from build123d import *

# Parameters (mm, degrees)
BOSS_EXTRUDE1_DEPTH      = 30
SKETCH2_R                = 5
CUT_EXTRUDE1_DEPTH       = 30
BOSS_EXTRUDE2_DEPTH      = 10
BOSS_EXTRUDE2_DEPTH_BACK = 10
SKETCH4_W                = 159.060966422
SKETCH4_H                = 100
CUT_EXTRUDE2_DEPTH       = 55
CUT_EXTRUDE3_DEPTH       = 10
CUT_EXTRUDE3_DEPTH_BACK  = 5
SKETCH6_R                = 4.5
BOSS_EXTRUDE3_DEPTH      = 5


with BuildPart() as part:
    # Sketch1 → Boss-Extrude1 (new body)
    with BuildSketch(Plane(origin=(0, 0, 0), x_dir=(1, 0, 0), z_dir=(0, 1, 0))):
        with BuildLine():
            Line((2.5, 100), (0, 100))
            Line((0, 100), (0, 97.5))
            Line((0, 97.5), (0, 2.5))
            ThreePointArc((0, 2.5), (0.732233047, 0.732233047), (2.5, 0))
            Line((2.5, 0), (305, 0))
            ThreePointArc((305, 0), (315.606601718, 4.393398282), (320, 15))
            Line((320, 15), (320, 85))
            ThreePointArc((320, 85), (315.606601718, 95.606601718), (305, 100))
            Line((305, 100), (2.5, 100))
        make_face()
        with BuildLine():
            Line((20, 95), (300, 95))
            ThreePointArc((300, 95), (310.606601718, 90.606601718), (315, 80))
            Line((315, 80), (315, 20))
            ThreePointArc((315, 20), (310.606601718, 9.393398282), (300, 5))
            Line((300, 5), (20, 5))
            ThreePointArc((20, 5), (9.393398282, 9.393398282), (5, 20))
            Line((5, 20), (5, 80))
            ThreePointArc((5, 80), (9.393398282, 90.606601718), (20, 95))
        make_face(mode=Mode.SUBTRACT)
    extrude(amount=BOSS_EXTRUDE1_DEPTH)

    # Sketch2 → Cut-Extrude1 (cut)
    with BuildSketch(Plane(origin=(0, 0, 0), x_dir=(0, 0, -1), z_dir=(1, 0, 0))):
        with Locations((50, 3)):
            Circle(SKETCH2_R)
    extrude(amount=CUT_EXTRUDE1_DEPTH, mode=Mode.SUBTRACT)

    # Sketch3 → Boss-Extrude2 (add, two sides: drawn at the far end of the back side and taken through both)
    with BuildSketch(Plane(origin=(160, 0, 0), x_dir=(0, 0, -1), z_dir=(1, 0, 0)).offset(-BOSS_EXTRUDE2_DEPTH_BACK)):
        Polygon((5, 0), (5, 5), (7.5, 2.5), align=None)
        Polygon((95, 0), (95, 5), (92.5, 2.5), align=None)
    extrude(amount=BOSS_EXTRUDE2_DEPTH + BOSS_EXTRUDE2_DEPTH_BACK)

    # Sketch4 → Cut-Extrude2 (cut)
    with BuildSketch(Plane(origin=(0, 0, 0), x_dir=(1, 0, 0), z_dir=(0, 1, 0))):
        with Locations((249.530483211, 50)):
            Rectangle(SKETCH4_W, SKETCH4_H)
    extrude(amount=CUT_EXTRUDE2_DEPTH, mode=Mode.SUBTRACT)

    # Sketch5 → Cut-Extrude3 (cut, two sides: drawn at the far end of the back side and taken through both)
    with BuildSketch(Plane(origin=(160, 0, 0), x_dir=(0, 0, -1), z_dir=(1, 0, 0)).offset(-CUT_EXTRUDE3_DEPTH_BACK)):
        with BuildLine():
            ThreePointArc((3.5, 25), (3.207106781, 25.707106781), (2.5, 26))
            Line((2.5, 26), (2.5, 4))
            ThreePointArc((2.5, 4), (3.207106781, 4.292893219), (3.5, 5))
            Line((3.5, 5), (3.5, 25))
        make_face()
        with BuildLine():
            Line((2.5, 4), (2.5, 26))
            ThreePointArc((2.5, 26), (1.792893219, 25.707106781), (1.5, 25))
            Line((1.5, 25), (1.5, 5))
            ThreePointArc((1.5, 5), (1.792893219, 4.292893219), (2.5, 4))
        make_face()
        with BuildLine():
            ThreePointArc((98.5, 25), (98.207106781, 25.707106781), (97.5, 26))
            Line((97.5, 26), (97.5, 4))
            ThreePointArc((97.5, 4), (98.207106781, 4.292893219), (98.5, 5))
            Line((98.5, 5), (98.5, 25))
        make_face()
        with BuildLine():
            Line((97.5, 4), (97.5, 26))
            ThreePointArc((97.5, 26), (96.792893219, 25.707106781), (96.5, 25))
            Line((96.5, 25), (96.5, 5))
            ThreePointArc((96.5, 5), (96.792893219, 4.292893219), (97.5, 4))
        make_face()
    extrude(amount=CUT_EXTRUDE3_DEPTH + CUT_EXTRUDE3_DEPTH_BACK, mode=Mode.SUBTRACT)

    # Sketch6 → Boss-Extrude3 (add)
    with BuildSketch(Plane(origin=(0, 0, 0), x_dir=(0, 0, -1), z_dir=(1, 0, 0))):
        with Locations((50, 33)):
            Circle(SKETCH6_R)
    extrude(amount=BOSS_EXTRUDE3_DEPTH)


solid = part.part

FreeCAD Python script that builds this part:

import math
import FreeCAD as App
import Part
import Sketcher

V = App.Vector
Q = App.Units.Quantity


def add_polygon(sketch, points):
    """Adds a closed chain of lines whose ends are joined by coincident constraints."""
    first, n = sketch.GeometryCount, len(points)
    for a, b in zip(points, points[1:] + points[:1]):
        sketch.addGeometry(Part.LineSegment(App.Vector(*a, 0), App.Vector(*b, 0)), False)
    for i in range(n):
        sketch.addConstraint(Sketcher.Constraint("Coincident", first + i, 2, first + (i + 1) % n, 1))

doc = App.newDocument("Part")
params = doc.addObject("Spreadsheet::Sheet", "Params")
for row, (alias, value) in enumerate([
    ("sketch1_radius", "15 mm"),
    ("sketch1_radius2", "2.5 mm"),
    ("sketch1_width", "305 mm"),
    ("sketch1_width2", "280 mm"),
    ("sketch1_height", "70 mm"),
    ("pad1_length", "30 mm"),
    ("sketch2_diameter", "10 mm"),
    ("pocket1_length", "30 mm"),
    ("sketch3_width", "5 mm"),
    ("pad2_length", "10 mm"),
    ("pad2_length2", "10 mm"),
    ("sketch4_height", "100 mm"),
    ("pocket2_length", "55 mm"),
    ("sketch5_radius", "1 mm"),
    ("sketch5_width", "20 mm"),
    ("pocket3_length", "10 mm"),
    ("pocket3_length2", "5 mm"),
    ("sketch6_diameter", "9 mm"),
    ("pad3_length", "5 mm"),
], start=1):
    params.set(f"A{row}", alias)
    params.set(f"B{row}", "=" + value)
    params.setAlias(f"B{row}", alias)

body = doc.addObject("PartDesign::Body", "Body")

# Sketch on XZ plane
sketch1 = doc.addObject("Sketcher::SketchObject", "Sketch")
body.addObject(sketch1)
sketch1.AttachmentSupport = (doc.XZ_Plane, [""])
sketch1.MapMode = "FlatFace"
sketch1.addGeometry([
    Part.LineSegment(V(0, -100, 0), V(0, -2.5, 0)),  # 0
    Part.ArcOfCircle(Part.Circle(V(2.5, -2.5, 0), V(0, 0, 1), 2.5), math.radians(90), math.radians(180)),  # 1
    Part.LineSegment(V(2.5, 0, 0), V(305, 0, 0)),  # 2
    Part.ArcOfCircle(Part.Circle(V(305, -15, 0), V(0, 0, 1), 15), math.radians(0), math.radians(90)),  # 3
    Part.LineSegment(V(320, -15, 0), V(320, -85, 0)),  # 4
    Part.ArcOfCircle(Part.Circle(V(305, -85, 0), V(0, 0, 1), 15), math.radians(-90), math.radians(0)),  # 5
    Part.LineSegment(V(305, -100, 0), V(0, -100, 0)),  # 6
    Part.ArcOfCircle(Part.Circle(V(20, -80, 0), V(0, 0, 1), 15), math.radians(180), math.radians(270)),  # 7
    Part.LineSegment(V(20, -95, 0), V(300, -95, 0)),  # 8
    Part.ArcOfCircle(Part.Circle(V(300, -80, 0), V(0, 0, 1), 15), math.radians(-90), math.radians(0)),  # 9
    Part.LineSegment(V(315, -80, 0), V(315, -20, 0)),  # 10
    Part.ArcOfCircle(Part.Circle(V(300, -20, 0), V(0, 0, 1), 15), math.radians(0), math.radians(90)),  # 11
    Part.LineSegment(V(300, -5, 0), V(20, -5, 0)),  # 12
    Part.ArcOfCircle(Part.Circle(V(20, -20, 0), V(0, 0, 1), 15), math.radians(90), math.radians(180)),  # 13
    Part.LineSegment(V(5, -20, 0), V(5, -80, 0)),  # 14
], False)
sketch1.addConstraint([
    Sketcher.Constraint("Tangent", 0, 2, 1, 2),
    Sketcher.Constraint("Tangent", 1, 1, 2, 1),
    Sketcher.Constraint("Tangent", 2, 2, 3, 2),
    Sketcher.Constraint("Tangent", 3, 1, 4, 1),
    Sketcher.Constraint("Tangent", 4, 2, 5, 2),
    Sketcher.Constraint("Tangent", 5, 1, 6, 1),
    Sketcher.Constraint("Coincident", 6, 2, 0, 1),
    Sketcher.Constraint("Tangent", 7, 2, 8, 1),
    Sketcher.Constraint("Tangent", 8, 2, 9, 1),
    Sketcher.Constraint("Tangent", 9, 2, 10, 1),
    Sketcher.Constraint("Tangent", 10, 2, 11, 1),
    Sketcher.Constraint("Tangent", 11, 2, 12, 1),
    Sketcher.Constraint("Tangent", 12, 2, 13, 1),
    Sketcher.Constraint("Tangent", 13, 2, 14, 1),
    Sketcher.Constraint("Tangent", 14, 2, 7, 1),
    Sketcher.Constraint("Vertical", 0),
    Sketcher.Constraint("Horizontal", 2),
    Sketcher.Constraint("Vertical", 4),
    Sketcher.Constraint("Horizontal", 6),
    Sketcher.Constraint("Horizontal", 8),
    Sketcher.Constraint("Vertical", 10),
    Sketcher.Constraint("Horizontal", 12),
    Sketcher.Constraint("Vertical", 14),
    Sketcher.Constraint("Equal", 3, 5),
    Sketcher.Constraint("Equal", 5, 7),
    Sketcher.Constraint("Equal", 7, 9),
    Sketcher.Constraint("Equal", 9, 11),
    Sketcher.Constraint("Equal", 11, 13),
    Sketcher.Constraint("PointOnObject", 0, 2, -2),
    Sketcher.Constraint("PointOnObject", 1, 1, -1),
    Sketcher.Constraint("Radius", 3, Q("15 mm")),
    Sketcher.Constraint("Radius", 1, Q("2.5 mm")),
    Sketcher.Constraint("DistanceX", 6, 2, 6, 1, Q("305 mm")),
    Sketcher.Constraint("DistanceX", 8, 1, 8, 2, Q("280 mm")),
    Sketcher.Constraint("DistanceY", 4, 2, 4, 1, Q("70 mm")),
    Sketcher.Constraint("DistanceY", 10, 1, 10, 2, Q("60 mm")),
    Sketcher.Constraint("DistanceX", -1, 1, 7, 3, Q("20 mm")),
    Sketcher.Constraint("DistanceY", 7, 3, -1, 1, Q("80 mm")),
])
sketch1.setExpression("Constraints[30]", "Params.sketch1_radius")
sketch1.setExpression("Constraints[31]", "Params.sketch1_radius2")
sketch1.setExpression("Constraints[32]", "Params.sketch1_width")
sketch1.setExpression("Constraints[33]", "Params.sketch1_width2")
sketch1.setExpression("Constraints[34]", "Params.sketch1_height")
pad1 = doc.addObject("PartDesign::Pad", "Pad")
body.addObject(pad1)
pad1.Profile = sketch1
pad1.setExpression("Length", "Params.pad1_length")
pad1.Reversed = True

# Sketch on YZ plane
sketch2 = doc.addObject("Sketcher::SketchObject", "Sketch001")
body.addObject(sketch2)
sketch2.AttachmentSupport = (doc.YZ_Plane, [""])
sketch2.MapMode = "FlatFace"
sketch2.addGeometry(Part.Circle(V(3, -50, 0), V(0, 0, 1), 5), False)
sketch2.addConstraint([
    Sketcher.Constraint("Diameter", 0, Q("10 mm")),
    Sketcher.Constraint("DistanceX", -1, 1, 0, 3, Q("3 mm")),
    Sketcher.Constraint("DistanceY", 0, 3, -1, 1, Q("50 mm")),
])
sketch2.setExpression("Constraints[0]", "Params.sketch2_diameter")
pocket1 = doc.addObject("PartDesign::Pocket", "Pocket")
body.addObject(pocket1)
pocket1.Profile = sketch2
pocket1.setExpression("Length", "Params.pocket1_length")
pocket1.Reversed = True

# Sketch on YZ plane
sketch3 = doc.addObject("Sketcher::SketchObject", "Sketch002")
body.addObject(sketch3)
sketch3.AttachmentSupport = (doc.YZ_Plane, [""])
sketch3.MapMode = "FlatFace"
sketch3.AttachmentOffset = App.Placement(V(0, 0, 160), App.Rotation())
add_polygon(sketch3, [(5, -5), (0, -5), (2.5, -7.5)])  # lines 0-2
add_polygon(sketch3, [(0, -95), (5, -95), (2.5, -92.5)])  # lines 3-5
sketch3.addConstraint([
    Sketcher.Constraint("Horizontal", 0),
    Sketcher.Constraint("Horizontal", 3),
    Sketcher.Constraint("PointOnObject", 0, 2, -2),
    Sketcher.Constraint("PointOnObject", 5, 2, -2),
    Sketcher.Constraint("Perpendicular", 1, 2),
    Sketcher.Constraint("Perpendicular", 2, 4),
    Sketcher.Constraint("Perpendicular", 4, 5),
    Sketcher.Constraint("Vertical", 2, 2, 3, 2),
    Sketcher.Constraint("Vertical", 1, 2, 4, 2),
    Sketcher.Constraint("DistanceX", 0, 2, 0, 1, Q("5 mm")),
    Sketcher.Constraint("DistanceY", 0, 2, -1, 1, Q("5 mm")),
    Sketcher.Constraint("DistanceY", 3, 2, -1, 1, Q("95 mm")),
])
sketch3.setExpression("Constraints[15]", "Params.sketch3_width")
pad2 = doc.addObject("PartDesign::Pad", "Pad001")
body.addObject(pad2)
pad2.Profile = sketch3
pad2.Type = "TwoLengths"
pad2.setExpression("Length", "Params.pad2_length")
pad2.setExpression("Length2", "Params.pad2_length2")

# Sketch on XZ plane
sketch4 = doc.addObject("Sketcher::SketchObject", "Sketch003")
body.addObject(sketch4)
sketch4.AttachmentSupport = (doc.XZ_Plane, [""])
sketch4.MapMode = "FlatFace"
add_polygon(sketch4, [(170, -100), (170, 0), (329.060966, 0), (329.060966, -100)])  # lines 0-3
sketch4.addConstraint([
    Sketcher.Constraint("Vertical", 0),
    Sketcher.Constraint("Horizontal", 1),
    Sketcher.Constraint("Vertical", 2),
    Sketcher.Constraint("Horizontal", 3),
    Sketcher.Constraint("PointOnObject", 0, 2, -1),
    Sketcher.Constraint("DistanceY", 0, 1, 0, 2, Q("100 mm")),
    Sketcher.Constraint("DistanceX", -1, 1, 0, 2, Q("170 mm")),
    Sketcher.Constraint("DistanceX", 1, 1, 1, 2, Q("159.060966 mm")),
])
sketch4.setExpression("Constraints[9]", "Params.sketch4_height")
pocket2 = doc.addObject("PartDesign::Pocket", "Pocket001")
body.addObject(pocket2)
pocket2.Profile = sketch4
pocket2.setExpression("Length", "Params.pocket2_length")

# Sketch on YZ plane
sketch5 = doc.addObject("Sketcher::SketchObject", "Sketch004")
body.addObject(sketch5)
sketch5.AttachmentSupport = (doc.YZ_Plane, [""])
sketch5.MapMode = "FlatFace"
sketch5.AttachmentOffset = App.Placement(V(0, 0, 160), App.Rotation())
sketch5.addGeometry([
    Part.ArcOfCircle(Part.Circle(V(25, -2.5, 0), V(0, 0, 1), 1), math.radians(-90), math.radians(0)),  # 0
    Part.ArcOfCircle(Part.Circle(V(25, -2.5, 0), V(0, 0, 1), 1), math.radians(0), math.radians(90)),  # 1
    Part.LineSegment(V(25, -1.5, 0), V(5, -1.5, 0)),  # 2
    Part.ArcOfCircle(Part.Circle(V(5, -2.5, 0), V(0, 0, 1), 1), math.radians(90), math.radians(180)),  # 3
    Part.ArcOfCircle(Part.Circle(V(5, -2.5, 0), V(0, 0, 1), 1), math.radians(-180), math.radians(-90)),  # 4
    Part.LineSegment(V(5, -3.5, 0), V(25, -3.5, 0)),  # 5
    Part.ArcOfCircle(Part.Circle(V(25, -97.5, 0), V(0, 0, 1), 1), math.radians(-90), math.radians(0)),  # 6
    Part.ArcOfCircle(Part.Circle(V(25, -97.5, 0), V(0, 0, 1), 1), math.radians(0), math.radians(90)),  # 7
    Part.LineSegment(V(25, -96.5, 0), V(5, -96.5, 0)),  # 8
    Part.ArcOfCircle(Part.Circle(V(5, -97.5, 0), V(0, 0, 1), 1), math.radians(90), math.radians(180)),  # 9
    Part.ArcOfCircle(Part.Circle(V(5, -97.5, 0), V(0, 0, 1), 1), math.radians(-180), math.radians(-90)),  # 10
    Part.LineSegment(V(5, -98.5, 0), V(25, -98.5, 0)),  # 11
], False)
sketch5.addConstraint([
    Sketcher.Constraint("Tangent", 0, 2, 1, 1),
    Sketcher.Constraint("Tangent", 1, 2, 2, 1),
    Sketcher.Constraint("Tangent", 2, 2, 3, 1),
    Sketcher.Constraint("Tangent", 3, 2, 4, 1),
    Sketcher.Constraint("Tangent", 4, 2, 5, 1),
    Sketcher.Constraint("Tangent", 5, 2, 0, 1),
    Sketcher.Constraint("Tangent", 6, 2, 7, 1),
    Sketcher.Constraint("Tangent", 7, 2, 8, 1),
    Sketcher.Constraint("Tangent", 8, 2, 9, 1),
    Sketcher.Constraint("Tangent", 9, 2, 10, 1),
    Sketcher.Constraint("Tangent", 10, 2, 11, 1),
    Sketcher.Constraint("Tangent", 11, 2, 6, 1),
    Sketcher.Constraint("Horizontal", 2),
    Sketcher.Constraint("Horizontal", 5),
    Sketcher.Constraint("Horizontal", 8),
    Sketcher.Constraint("Horizontal", 11),
    Sketcher.Constraint("Equal", 0, 1),
    Sketcher.Constraint("Equal", 1, 3),
    Sketcher.Constraint("Equal", 4, 6),
    Sketcher.Constraint("Equal", 6, 7),
    Sketcher.Constraint("Equal", 7, 9),
    Sketcher.Constraint("Horizontal", 4, 3, 0, 2),
    Sketcher.Constraint("Horizontal", 0, 2, 3, 2),
    Sketcher.Constraint("Horizontal", 10, 3, 6, 2),
    Sketcher.Constraint("Horizontal", 6, 2, 9, 2),
    Sketcher.Constraint("Vertical", 1, 3, 6, 3),
    Sketcher.Constraint("Vertical", 4, 3, 9, 3),
    Sketcher.Constraint("Radius", 0, Q("1 mm")),
    Sketcher.Constraint("DistanceX", 2, 2, 2, 1, Q("20 mm")),
    Sketcher.Constraint("DistanceX", -1, 1, 0, 3, Q("25 mm")),
    Sketcher.Constraint("DistanceY", 6, 3, 1, 3, Q("95 mm")),
    Sketcher.Constraint("DistanceY", 0, 3, -1, 1, Q("2.5 mm")),
])
sketch5.setExpression("Constraints[27]", "Params.sketch5_radius")
sketch5.setExpression("Constraints[28]", "Params.sketch5_width")
pocket3 = doc.addObject("PartDesign::Pocket", "Pocket002")
body.addObject(pocket3)
pocket3.Profile = sketch5
pocket3.Type = "TwoLengths"
pocket3.setExpression("Length", "Params.pocket3_length")
pocket3.setExpression("Length2", "Params.pocket3_length2")
pocket3.Reversed = True

# Sketch on YZ plane
sketch6 = doc.addObject("Sketcher::SketchObject", "Sketch005")
body.addObject(sketch6)
sketch6.AttachmentSupport = (doc.YZ_Plane, [""])
sketch6.MapMode = "FlatFace"
sketch6.addGeometry(Part.Circle(V(33, -50, 0), V(0, 0, 1), 4.5), False)
sketch6.addConstraint([
    Sketcher.Constraint("Diameter", 0, Q("9 mm")),
    Sketcher.Constraint("DistanceX", -1, 1, 0, 3, Q("33 mm")),
    Sketcher.Constraint("DistanceY", 0, 3, -1, 1, Q("50 mm")),
])
sketch6.setExpression("Constraints[0]", "Params.sketch6_diameter")
pad3 = doc.addObject("PartDesign::Pad", "Pad002")
body.addObject(pad3)
pad3.Profile = sketch6
pad3.setExpression("Length", "Params.pad3_length")

doc.recompute()
